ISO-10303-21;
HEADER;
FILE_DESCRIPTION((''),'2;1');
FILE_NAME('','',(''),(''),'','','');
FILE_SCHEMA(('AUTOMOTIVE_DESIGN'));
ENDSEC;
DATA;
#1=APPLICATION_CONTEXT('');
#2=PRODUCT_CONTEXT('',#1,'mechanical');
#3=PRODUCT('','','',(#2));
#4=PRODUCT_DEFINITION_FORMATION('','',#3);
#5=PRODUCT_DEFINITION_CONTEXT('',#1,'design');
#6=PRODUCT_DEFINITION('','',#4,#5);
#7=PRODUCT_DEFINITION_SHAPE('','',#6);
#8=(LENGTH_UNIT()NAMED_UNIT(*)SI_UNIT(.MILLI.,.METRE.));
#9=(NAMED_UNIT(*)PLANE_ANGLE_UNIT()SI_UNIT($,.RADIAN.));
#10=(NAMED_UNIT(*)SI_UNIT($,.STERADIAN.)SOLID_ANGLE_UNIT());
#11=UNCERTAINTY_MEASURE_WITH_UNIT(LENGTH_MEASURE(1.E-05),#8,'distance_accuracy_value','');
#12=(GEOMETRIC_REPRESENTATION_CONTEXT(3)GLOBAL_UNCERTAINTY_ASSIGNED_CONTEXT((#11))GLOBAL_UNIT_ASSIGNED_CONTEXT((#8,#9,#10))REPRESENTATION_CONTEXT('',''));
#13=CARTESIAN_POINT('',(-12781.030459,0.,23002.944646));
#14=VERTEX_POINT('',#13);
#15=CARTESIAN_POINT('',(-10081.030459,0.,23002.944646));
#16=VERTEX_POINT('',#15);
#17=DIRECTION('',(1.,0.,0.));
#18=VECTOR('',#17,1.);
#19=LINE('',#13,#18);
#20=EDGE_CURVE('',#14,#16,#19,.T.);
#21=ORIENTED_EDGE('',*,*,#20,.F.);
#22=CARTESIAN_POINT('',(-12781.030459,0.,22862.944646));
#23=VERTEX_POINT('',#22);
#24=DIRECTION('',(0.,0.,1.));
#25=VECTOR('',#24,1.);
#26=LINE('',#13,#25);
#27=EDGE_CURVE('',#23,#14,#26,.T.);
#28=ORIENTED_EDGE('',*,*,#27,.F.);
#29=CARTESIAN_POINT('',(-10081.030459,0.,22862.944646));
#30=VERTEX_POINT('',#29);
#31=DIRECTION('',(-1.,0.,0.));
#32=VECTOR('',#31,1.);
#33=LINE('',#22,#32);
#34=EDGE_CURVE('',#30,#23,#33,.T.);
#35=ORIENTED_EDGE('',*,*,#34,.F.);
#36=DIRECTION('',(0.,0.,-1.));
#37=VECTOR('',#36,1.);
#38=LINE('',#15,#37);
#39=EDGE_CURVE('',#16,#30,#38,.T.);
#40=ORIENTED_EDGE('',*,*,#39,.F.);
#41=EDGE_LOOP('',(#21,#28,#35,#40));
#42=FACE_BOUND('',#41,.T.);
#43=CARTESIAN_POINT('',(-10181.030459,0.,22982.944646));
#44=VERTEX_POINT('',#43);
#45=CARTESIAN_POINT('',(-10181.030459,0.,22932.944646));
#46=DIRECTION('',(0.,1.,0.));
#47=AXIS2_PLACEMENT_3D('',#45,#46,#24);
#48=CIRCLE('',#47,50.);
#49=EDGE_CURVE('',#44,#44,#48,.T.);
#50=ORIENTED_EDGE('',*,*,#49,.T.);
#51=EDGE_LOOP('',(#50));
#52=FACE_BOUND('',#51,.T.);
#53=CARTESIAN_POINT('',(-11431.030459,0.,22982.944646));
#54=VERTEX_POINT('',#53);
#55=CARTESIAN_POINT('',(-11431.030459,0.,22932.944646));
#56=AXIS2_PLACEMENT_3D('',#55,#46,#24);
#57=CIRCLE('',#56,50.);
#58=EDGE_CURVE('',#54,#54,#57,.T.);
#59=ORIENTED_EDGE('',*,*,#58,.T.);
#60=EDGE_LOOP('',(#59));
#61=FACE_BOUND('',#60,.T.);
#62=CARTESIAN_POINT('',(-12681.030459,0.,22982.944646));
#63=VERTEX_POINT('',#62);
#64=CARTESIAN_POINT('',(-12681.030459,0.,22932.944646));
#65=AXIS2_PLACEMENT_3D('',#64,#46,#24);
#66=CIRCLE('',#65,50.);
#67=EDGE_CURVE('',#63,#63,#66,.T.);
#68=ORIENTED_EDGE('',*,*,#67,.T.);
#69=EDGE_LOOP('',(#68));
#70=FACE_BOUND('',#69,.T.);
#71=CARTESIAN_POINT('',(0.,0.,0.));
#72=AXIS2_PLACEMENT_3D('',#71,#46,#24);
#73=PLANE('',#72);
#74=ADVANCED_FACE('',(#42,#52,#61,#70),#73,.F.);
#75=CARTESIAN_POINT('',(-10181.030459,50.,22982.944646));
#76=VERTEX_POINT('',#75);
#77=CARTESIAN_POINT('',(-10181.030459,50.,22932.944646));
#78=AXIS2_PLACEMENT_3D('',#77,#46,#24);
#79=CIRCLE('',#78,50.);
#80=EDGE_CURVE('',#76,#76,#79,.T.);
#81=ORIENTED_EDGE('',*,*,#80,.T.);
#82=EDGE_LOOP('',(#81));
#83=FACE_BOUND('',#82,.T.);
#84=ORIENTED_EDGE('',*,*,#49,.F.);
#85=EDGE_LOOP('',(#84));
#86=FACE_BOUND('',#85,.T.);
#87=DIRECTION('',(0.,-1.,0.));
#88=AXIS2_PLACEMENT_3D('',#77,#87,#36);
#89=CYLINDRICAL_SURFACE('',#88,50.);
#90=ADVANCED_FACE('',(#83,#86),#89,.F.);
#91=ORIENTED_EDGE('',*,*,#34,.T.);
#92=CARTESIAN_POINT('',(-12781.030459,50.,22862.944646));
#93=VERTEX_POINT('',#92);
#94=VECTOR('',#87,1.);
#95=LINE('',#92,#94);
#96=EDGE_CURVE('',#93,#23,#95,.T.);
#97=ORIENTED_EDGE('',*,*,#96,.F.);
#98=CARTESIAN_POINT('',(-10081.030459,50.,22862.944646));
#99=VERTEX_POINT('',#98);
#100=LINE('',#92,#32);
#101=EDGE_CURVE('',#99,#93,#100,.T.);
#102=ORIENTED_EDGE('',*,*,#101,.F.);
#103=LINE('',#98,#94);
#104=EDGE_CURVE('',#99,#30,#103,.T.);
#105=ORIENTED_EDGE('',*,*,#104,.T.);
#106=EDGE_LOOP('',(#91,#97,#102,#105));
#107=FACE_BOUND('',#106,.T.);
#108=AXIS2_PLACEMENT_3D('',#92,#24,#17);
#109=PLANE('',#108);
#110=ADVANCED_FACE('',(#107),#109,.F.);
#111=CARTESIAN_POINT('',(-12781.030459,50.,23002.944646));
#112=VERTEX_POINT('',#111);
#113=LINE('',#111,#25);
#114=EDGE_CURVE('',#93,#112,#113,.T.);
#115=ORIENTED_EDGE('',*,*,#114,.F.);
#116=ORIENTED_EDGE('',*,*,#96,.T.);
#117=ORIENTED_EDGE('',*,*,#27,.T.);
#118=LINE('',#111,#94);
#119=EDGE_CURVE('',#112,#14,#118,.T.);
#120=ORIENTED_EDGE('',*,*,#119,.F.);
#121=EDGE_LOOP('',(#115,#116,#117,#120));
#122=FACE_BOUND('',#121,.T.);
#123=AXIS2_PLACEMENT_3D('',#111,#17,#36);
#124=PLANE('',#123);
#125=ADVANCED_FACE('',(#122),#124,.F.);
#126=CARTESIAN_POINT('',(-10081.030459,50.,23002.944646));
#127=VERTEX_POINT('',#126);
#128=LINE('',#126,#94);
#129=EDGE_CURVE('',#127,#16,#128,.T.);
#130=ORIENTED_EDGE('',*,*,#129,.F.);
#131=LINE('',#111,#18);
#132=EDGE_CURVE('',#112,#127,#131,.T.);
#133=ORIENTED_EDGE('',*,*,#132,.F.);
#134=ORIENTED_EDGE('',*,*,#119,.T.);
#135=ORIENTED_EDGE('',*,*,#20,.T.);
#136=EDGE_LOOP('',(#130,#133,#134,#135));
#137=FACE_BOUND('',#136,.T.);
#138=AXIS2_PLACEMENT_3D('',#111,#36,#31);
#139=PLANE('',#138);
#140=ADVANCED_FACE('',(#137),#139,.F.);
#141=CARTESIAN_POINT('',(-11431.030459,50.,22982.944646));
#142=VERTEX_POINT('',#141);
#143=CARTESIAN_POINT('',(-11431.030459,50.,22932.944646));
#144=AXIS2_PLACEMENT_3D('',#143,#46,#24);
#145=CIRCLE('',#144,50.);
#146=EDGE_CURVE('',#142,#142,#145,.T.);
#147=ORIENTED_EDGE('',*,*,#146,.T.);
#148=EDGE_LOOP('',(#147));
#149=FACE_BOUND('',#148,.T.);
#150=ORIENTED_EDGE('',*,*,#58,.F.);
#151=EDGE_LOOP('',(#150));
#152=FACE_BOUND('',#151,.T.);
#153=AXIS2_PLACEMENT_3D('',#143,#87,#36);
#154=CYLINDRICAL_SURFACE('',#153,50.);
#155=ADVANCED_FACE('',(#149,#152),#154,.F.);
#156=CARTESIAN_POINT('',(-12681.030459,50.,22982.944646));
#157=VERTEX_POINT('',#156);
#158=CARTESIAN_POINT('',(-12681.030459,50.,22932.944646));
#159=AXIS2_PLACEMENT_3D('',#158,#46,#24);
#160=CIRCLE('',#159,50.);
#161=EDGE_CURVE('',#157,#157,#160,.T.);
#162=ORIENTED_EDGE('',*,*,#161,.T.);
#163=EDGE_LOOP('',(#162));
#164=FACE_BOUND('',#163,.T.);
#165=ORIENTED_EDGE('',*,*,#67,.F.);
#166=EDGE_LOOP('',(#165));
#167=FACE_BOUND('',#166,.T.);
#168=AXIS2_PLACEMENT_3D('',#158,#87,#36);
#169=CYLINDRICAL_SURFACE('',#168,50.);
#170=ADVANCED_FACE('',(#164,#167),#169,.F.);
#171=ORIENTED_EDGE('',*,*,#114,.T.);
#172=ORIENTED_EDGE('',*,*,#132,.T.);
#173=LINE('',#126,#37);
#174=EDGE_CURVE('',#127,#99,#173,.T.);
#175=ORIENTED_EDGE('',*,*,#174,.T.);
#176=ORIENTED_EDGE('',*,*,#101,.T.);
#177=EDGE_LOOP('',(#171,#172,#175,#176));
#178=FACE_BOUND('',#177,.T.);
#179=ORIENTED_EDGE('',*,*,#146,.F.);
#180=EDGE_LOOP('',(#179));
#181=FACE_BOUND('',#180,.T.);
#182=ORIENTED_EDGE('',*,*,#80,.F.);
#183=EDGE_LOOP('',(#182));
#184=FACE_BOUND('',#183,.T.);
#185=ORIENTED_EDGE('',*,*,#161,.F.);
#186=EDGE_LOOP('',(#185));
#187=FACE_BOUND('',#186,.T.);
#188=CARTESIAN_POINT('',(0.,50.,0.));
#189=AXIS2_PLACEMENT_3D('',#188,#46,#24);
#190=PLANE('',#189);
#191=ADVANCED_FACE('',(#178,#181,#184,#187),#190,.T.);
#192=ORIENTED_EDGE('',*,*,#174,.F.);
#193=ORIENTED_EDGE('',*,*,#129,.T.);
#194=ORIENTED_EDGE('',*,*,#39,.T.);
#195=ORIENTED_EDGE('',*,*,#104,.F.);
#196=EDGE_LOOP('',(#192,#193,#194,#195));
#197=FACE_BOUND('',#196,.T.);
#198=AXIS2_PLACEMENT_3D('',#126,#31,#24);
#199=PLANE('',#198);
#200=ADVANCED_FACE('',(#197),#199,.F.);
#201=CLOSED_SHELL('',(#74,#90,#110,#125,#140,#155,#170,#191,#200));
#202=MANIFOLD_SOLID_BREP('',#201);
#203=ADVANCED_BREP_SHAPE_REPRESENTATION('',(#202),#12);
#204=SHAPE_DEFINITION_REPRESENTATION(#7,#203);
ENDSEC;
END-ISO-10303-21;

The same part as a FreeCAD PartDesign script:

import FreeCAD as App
import Part
import Sketcher


def add_polygon(sketch, points):
    """Adds a closed chain of lines whose ends are joined by coincident constraints."""
    first, n = sketch.GeometryCount, len(points)
    for a, b in zip(points, points[1:] + points[:1]):
        sketch.addGeometry(Part.LineSegment(App.Vector(*a, 0), App.Vector(*b, 0)), False)
    for i in range(n):
        sketch.addConstraint(Sketcher.Constraint("Coincident", first + i, 2, first + (i + 1) % n, 1))

doc = App.newDocument("Part")
body = doc.addObject("PartDesign::Body", "Body")

sketch1 = body.newObject("Sketcher::SketchObject", "Sketch")
sketch1.AttachmentSupport = (doc.getObject("XZ_Plane"), [""])
sketch1.MapMode = "FlatFace"
add_polygon(sketch1, [(-10081, 22863), (-12781, 22863), (-12781, 23003), (-10081, 23003)])
sketch1.addGeometry(Part.Circle(App.Vector(-12681, 22933, 0), App.Vector(0, 0, 1), 50), False)
sketch1.addGeometry(Part.Circle(App.Vector(-11431, 22933, 0), App.Vector(0, 0, 1), 50), False)
sketch1.addGeometry(Part.Circle(App.Vector(-10181, 22933, 0), App.Vector(0, 0, 1), 50), False)
sketch1.addConstraint(Sketcher.Constraint("Horizontal", 0))
sketch1.addConstraint(Sketcher.Constraint("Vertical", 1))
sketch1.addConstraint(Sketcher.Constraint("Horizontal", 2))
sketch1.addConstraint(Sketcher.Constraint("Vertical", 3))
sketch1.addConstraint(Sketcher.Constraint("Equal", 4, 5))
sketch1.addConstraint(Sketcher.Constraint("Equal", 5, 6))
sketch1.addConstraint(Sketcher.Constraint("Horizontal", 4, 3, 5, 3))
sketch1.addConstraint(Sketcher.Constraint("Horizontal", 5, 3, 6, 3))
sketch1.addConstraint(Sketcher.Constraint("Diameter", 4, 100.0))
sketch1.addConstraint(Sketcher.Constraint("DistanceX", 0, 2, 0, 1, 2700.0))
sketch1.addConstraint(Sketcher.Constraint("DistanceY", 1, 1, 1, 2, 140.0))
sketch1.addConstraint(Sketcher.Constraint("DistanceX", 4, 3, 5, 3, 1250.0))
sketch1.addConstraint(Sketcher.Constraint("DistanceX", 5, 3, 6, 3, 1250.0))
sketch1.addConstraint(Sketcher.Constraint("DistanceX", 0, 2, 4, 3, 100.0))
sketch1.addConstraint(Sketcher.Constraint("DistanceY", 0, 2, 4, 3, 70.0))
sketch1.addConstraint(Sketcher.Constraint("DistanceX", 4, 3, -1, 1, 12681.030459))
sketch1.addConstraint(Sketcher.Constraint("DistanceY", -1, 1, 4, 3, 22932.944646))
pad1 = body.newObject("PartDesign::Pad", "Pad")
pad1.Profile = sketch1
pad1.Length = 50
pad1.Reversed = True

doc.recompute()
